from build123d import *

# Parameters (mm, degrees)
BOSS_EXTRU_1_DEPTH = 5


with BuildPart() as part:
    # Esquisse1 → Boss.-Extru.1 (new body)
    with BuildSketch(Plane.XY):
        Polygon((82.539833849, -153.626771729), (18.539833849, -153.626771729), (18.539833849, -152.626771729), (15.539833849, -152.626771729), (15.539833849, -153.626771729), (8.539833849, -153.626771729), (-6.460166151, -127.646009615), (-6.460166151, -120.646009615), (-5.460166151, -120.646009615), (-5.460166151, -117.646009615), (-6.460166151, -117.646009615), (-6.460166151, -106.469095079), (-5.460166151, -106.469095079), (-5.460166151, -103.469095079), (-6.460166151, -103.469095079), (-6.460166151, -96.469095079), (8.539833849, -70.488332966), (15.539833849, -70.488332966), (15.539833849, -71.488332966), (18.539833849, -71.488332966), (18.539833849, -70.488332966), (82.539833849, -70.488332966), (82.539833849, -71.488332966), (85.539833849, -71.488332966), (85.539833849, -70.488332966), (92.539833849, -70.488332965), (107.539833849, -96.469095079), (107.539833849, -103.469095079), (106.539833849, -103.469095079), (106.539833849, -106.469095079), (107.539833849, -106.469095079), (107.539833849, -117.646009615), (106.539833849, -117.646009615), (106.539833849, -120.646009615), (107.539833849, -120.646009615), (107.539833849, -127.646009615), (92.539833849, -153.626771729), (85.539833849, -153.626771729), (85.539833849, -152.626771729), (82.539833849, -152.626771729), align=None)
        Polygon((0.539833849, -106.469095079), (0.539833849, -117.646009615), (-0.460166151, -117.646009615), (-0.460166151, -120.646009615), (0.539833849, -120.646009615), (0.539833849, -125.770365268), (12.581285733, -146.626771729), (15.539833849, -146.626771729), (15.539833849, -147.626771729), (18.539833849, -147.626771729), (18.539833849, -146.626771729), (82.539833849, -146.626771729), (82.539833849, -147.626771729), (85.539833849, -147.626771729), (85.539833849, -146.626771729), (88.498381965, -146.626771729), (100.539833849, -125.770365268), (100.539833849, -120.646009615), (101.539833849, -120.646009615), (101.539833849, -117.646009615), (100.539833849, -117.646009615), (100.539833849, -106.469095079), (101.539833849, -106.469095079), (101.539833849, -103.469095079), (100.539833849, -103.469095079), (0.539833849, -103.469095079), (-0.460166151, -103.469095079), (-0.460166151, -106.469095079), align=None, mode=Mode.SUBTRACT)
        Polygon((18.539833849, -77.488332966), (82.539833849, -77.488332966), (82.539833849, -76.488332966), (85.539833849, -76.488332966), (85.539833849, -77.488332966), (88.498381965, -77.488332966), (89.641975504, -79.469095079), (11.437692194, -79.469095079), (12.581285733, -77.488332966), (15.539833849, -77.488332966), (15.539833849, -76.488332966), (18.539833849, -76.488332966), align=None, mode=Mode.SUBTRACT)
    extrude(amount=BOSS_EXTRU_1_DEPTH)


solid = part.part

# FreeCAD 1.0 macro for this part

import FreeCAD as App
import Part
import Sketcher
Q = App.Units.Quantity

doc = App.newDocument("Part")
body = doc.addObject("PartDesign::Body", "Body")

sketch1 = doc.addObject("Sketcher::SketchObject", "Sketch")
body.addObject(sketch1)
sketch1.AttachmentSupport = (doc.XY_Plane, [""])
sketch1.MapMode = "FlatFace"
sketch1.addGeometry([
    Part.LineSegment(App.Vector(18.5, -153.6, 0), App.Vector(82.5, -153.6, 0)),
    Part.LineSegment(App.Vector(82.5, -153.6, 0), App.Vector(82.5, -152.6, 0)),
    Part.LineSegment(App.Vector(82.5, -152.6, 0), App.Vector(85.5, -152.6, 0)),
    Part.LineSegment(App.Vector(85.5, -152.6, 0), App.Vector(85.5, -153.6, 0)),
    Part.LineSegment(App.Vector(85.5, -153.6, 0), App.Vector(92.5, -153.6, 0)),
    Part.LineSegment(App.Vector(92.5, -153.6, 0), App.Vector(107.5, -127.6, 0)),
    Part.LineSegment(App.Vector(107.5, -127.6, 0), App.Vector(107.5, -120.6, 0)),
    Part.LineSegment(App.Vector(107.5, -120.6, 0), App.Vector(106.5, -120.6, 0)),
    Part.LineSegment(App.Vector(106.5, -120.6, 0), App.Vector(106.5, -117.6, 0)),
    Part.LineSegment(App.Vector(106.5, -117.6, 0), App.Vector(107.5, -117.6, 0)),
    Part.LineSegment(App.Vector(107.5, -117.6, 0), App.Vector(107.5, -106.5, 0)),
    Part.LineSegment(App.Vector(107.5, -106.5, 0), App.Vector(106.5, -106.5, 0)),
    Part.LineSegment(App.Vector(106.5, -106.5, 0), App.Vector(106.5, -103.5, 0)),
    Part.LineSegment(App.Vector(106.5, -103.5, 0), App.Vector(107.5, -103.5, 0)),
    Part.LineSegment(App.Vector(107.5, -103.5, 0), App.Vector(107.5, -96.5, 0)),
    Part.LineSegment(App.Vector(107.5, -96.5, 0), App.Vector(92.5, -70.5, 0)),
    Part.LineSegment(App.Vector(92.5, -70.5, 0), App.Vector(85.5, -70.5, 0)),
    Part.LineSegment(App.Vector(85.5, -70.5, 0), App.Vector(85.5, -71.5, 0)),
    Part.LineSegment(App.Vector(85.5, -71.5, 0), App.Vector(82.5, -71.5, 0)),
    Part.LineSegment(App.Vector(82.5, -71.5, 0), App.Vector(82.5, -70.5, 0)),
    Part.LineSegment(App.Vector(82.5, -70.5, 0), App.Vector(18.5, -70.5, 0)),
    Part.LineSegment(App.Vector(18.5, -70.5, 0), App.Vector(18.5, -71.5, 0)),
    Part.LineSegment(App.Vector(18.5, -71.5, 0), App.Vector(15.5, -71.5, 0)),
    Part.LineSegment(App.Vector(15.5, -71.5, 0), App.Vector(15.5, -70.5, 0)),
    Part.LineSegment(App.Vector(15.5, -70.5, 0), App.Vector(8.5, -70.5, 0)),
    Part.LineSegment(App.Vector(8.5, -70.5, 0), App.Vector(-6.5, -96.5, 0)),
    Part.LineSegment(App.Vector(-6.5, -96.5, 0), App.Vector(-6.5, -103.5, 0)),
    Part.LineSegment(App.Vector(-6.5, -103.5, 0), App.Vector(-5.5, -103.5, 0)),
    Part.LineSegment(App.Vector(-5.5, -103.5, 0), App.Vector(-5.5, -106.5, 0)),
    Part.LineSegment(App.Vector(-5.5, -106.5, 0), App.Vector(-6.5, -106.5, 0)),
    Part.LineSegment(App.Vector(-6.5, -106.5, 0), App.Vector(-6.5, -117.6, 0)),
    Part.LineSegment(App.Vector(-6.5, -117.6, 0), App.Vector(-5.5, -117.6, 0)),
    Part.LineSegment(App.Vector(-5.5, -117.6, 0), App.Vector(-5.5, -120.6, 0)),
    Part.LineSegment(App.Vector(-5.5, -120.6, 0), App.Vector(-6.5, -120.6, 0)),
    Part.LineSegment(App.Vector(-6.5, -120.6, 0), App.Vector(-6.5, -127.6, 0)),
    Part.LineSegment(App.Vector(-6.5, -127.6, 0), App.Vector(8.5, -153.6, 0)),
    Part.LineSegment(App.Vector(8.5, -153.6, 0), App.Vector(15.5, -153.6, 0)),
    Part.LineSegment(App.Vector(15.5, -153.6, 0), App.Vector(15.5, -152.6, 0)),
    Part.LineSegment(App.Vector(15.5, -152.6, 0), App.Vector(18.5, -152.6, 0)),
    Part.LineSegment(App.Vector(18.5, -152.6, 0), App.Vector(18.5, -153.6, 0)),
    Part.LineSegment(App.Vector(0.5, -106.5, 0), App.Vector(-0.5, -106.5, 0)),
    Part.LineSegment(App.Vector(-0.5, -106.5, 0), App.Vector(-0.5, -103.5, 0)),
    Part.LineSegment(App.Vector(-0.5, -103.5, 0), App.Vector(101.5, -103.5, 0)),
    Part.LineSegment(App.Vector(101.5, -103.5, 0), App.Vector(101.5, -106.5, 0)),
    Part.LineSegment(App.Vector(101.5, -106.5, 0), App.Vector(100.5, -106.5, 0)),
    Part.LineSegment(App.Vector(100.5, -106.5, 0), App.Vector(100.5, -117.6, 0)),
    Part.LineSegment(App.Vector(100.5, -117.6, 0), App.Vector(101.5, -117.6, 0)),
    Part.LineSegment(App.Vector(101.5, -117.6, 0), App.Vector(101.5, -120.6, 0)),
    Part.LineSegment(App.Vector(101.5, -120.6, 0), App.Vector(100.5, -120.6, 0)),
    Part.LineSegment(App.Vector(100.5, -120.6, 0), App.Vector(100.5, -125.8, 0)),
    Part.LineSegment(App.Vector(100.5, -125.8, 0), App.Vector(88.5, -146.6, 0)),
    Part.LineSegment(App.Vector(88.5, -146.6, 0), App.Vector(85.5, -146.6, 0)),
    Part.LineSegment(App.Vector(85.5, -146.6, 0), App.Vector(85.5, -147.6, 0)),
    Part.LineSegment(App.Vector(85.5, -147.6, 0), App.Vector(82.5, -147.6, 0)),
    Part.LineSegment(App.Vector(82.5, -147.6, 0), App.Vector(82.5, -146.6, 0)),
    Part.LineSegment(App.Vector(82.5, -146.6, 0), App.Vector(18.5, -146.6, 0)),
    Part.LineSegment(App.Vector(18.5, -146.6, 0), App.Vector(18.5, -147.6, 0)),
    Part.LineSegment(App.Vector(18.5, -147.6, 0), App.Vector(15.5, -147.6, 0)),
    Part.LineSegment(App.Vector(15.5, -147.6, 0), App.Vector(15.5, -146.6, 0)),
    Part.LineSegment(App.Vector(15.5, -146.6, 0), App.Vector(12.6, -146.6, 0)),
    Part.LineSegment(App.Vector(12.6, -146.6, 0), App.Vector(0.5, -125.8, 0)),
    Part.LineSegment(App.Vector(0.5, -125.8, 0), App.Vector(0.5, -120.6, 0)),
    Part.LineSegment(App.Vector(0.5, -120.6, 0), App.Vector(-0.5, -120.6, 0)),
    Part.LineSegment(App.Vector(-0.5, -120.6, 0), App.Vector(-0.5, -117.6, 0)),
    Part.LineSegment(App.Vector(-0.5, -117.6, 0), App.Vector(0.5, -117.6, 0)),
    Part.LineSegment(App.Vector(0.5, -117.6, 0), App.Vector(0.5, -106.5, 0)),
    Part.LineSegment(App.Vector(18.5, -77.5, 0), App.Vector(82.5, -77.5, 0)),
    Part.LineSegment(App.Vector(82.5, -77.5, 0), App.Vector(82.5, -76.5, 0)),
    Part.LineSegment(App.Vector(82.5, -76.5, 0), App.Vector(85.5, -76.5, 0)),
    Part.LineSegment(App.Vector(85.5, -76.5, 0), App.Vector(85.5, -77.5, 0)),
    Part.LineSegment(App.Vector(85.5, -77.5, 0), App.Vector(88.5, -77.5, 0)),
    Part.LineSegment(App.Vector(88.5, -77.5, 0), App.Vector(89.6, -79.5, 0)),
    Part.LineSegment(App.Vector(89.6, -79.5, 0), App.Vector(11.4, -79.5, 0)),
    Part.LineSegment(App.Vector(11.4, -79.5, 0), App.Vector(12.6, -77.5, 0)),
    Part.LineSegment(App.Vector(12.6, -77.5, 0), App.Vector(15.5, -77.5, 0)),
    Part.LineSegment(App.Vector(15.5, -77.5, 0), App.Vector(15.5, -76.5, 0)),
    Part.LineSegment(App.Vector(15.5, -76.5, 0), App.Vector(18.5, -76.5, 0)),
    Part.LineSegment(App.Vector(18.5, -76.5, 0), App.Vector(18.5, -77.5, 0)),
], False)
sketch1.addConstraint([
    Sketcher.Constraint("Coincident", 0, 2, 1, 1),
    Sketcher.Constraint("Coincident", 1, 2, 2, 1),
    Sketcher.Constraint("Coincident", 2, 2, 3, 1),
    Sketcher.Constraint("Coincident", 3, 2, 4, 1),
    Sketcher.Constraint("Coincident", 4, 2, 5, 1),
    Sketcher.Constraint("Coincident", 5, 2, 6, 1),
    Sketcher.Constraint("Coincident", 6, 2, 7, 1),
    Sketcher.Constraint("Coincident", 7, 2, 8, 1),
    Sketcher.Constraint("Coincident", 8, 2, 9, 1),
    Sketcher.Constraint("Coincident", 9, 2, 10, 1),
    Sketcher.Constraint("Coincident", 10, 2, 11, 1),
    Sketcher.Constraint("Coincident", 11, 2, 12, 1),
    Sketcher.Constraint("Coincident", 12, 2, 13, 1),
    Sketcher.Constraint("Coincident", 13, 2, 14, 1),
    Sketcher.Constraint("Coincident", 14, 2, 15, 1),
    Sketcher.Constraint("Coincident", 15, 2, 16, 1),
    Sketcher.Constraint("Coincident", 16, 2, 17, 1),
    Sketcher.Constraint("Coincident", 17, 2, 18, 1),
    Sketcher.Constraint("Coincident", 18, 2, 19, 1),
    Sketcher.Constraint("Coincident", 19, 2, 20, 1),
    Sketcher.Constraint("Coincident", 20, 2, 21, 1),
    Sketcher.Constraint("Coincident", 21, 2, 22, 1),
    Sketcher.Constraint("Coincident", 22, 2, 23, 1),
    Sketcher.Constraint("Coincident", 23, 2, 24, 1),
    Sketcher.Constraint("Coincident", 24, 2, 25, 1),
    Sketcher.Constraint("Coincident", 25, 2, 26, 1),
    Sketcher.Constraint("Coincident", 26, 2, 27, 1),
    Sketcher.Constraint("Coincident", 27, 2, 28, 1),
    Sketcher.Constraint("Coincident", 28, 2, 29, 1),
    Sketcher.Constraint("Coincident", 29, 2, 30, 1),
    Sketcher.Constraint("Coincident", 30, 2, 31, 1),
    Sketcher.Constraint("Coincident", 31, 2, 32, 1),
    Sketcher.Constraint("Coincident", 32, 2, 33, 1),
    Sketcher.Constraint("Coincident", 33, 2, 34, 1),
    Sketcher.Constraint("Coincident", 34, 2, 35, 1),
    Sketcher.Constraint("Coincident", 35, 2, 36, 1),
    Sketcher.Constraint("Coincident", 36, 2, 37, 1),
    Sketcher.Constraint("Coincident", 37, 2, 38, 1),
    Sketcher.Constraint("Coincident", 38, 2, 39, 1),
    Sketcher.Constraint("Coincident", 39, 2, 0, 1),
    Sketcher.Constraint("Coincident", 40, 2, 41, 1),
    Sketcher.Constraint("Coincident", 41, 2, 42, 1),
    Sketcher.Constraint("Coincident", 42, 2, 43, 1),
    Sketcher.Constraint("Coincident", 43, 2, 44, 1),
    Sketcher.Constraint("Coincident", 44, 2, 45, 1),
    Sketcher.Constraint("Coincident", 45, 2, 46, 1),
    Sketcher.Constraint("Coincident", 46, 2, 47, 1),
    Sketcher.Constraint("Coincident", 47, 2, 48, 1),
    Sketcher.Constraint("Coincident", 48, 2, 49, 1),
    Sketcher.Constraint("Coincident", 49, 2, 50, 1),
    Sketcher.Constraint("Coincident", 50, 2, 51, 1),
    Sketcher.Constraint("Coincident", 51, 2, 52, 1),
    Sketcher.Constraint("Coincident", 52, 2, 53, 1),
    Sketcher.Constraint("Coincident", 53, 2, 54, 1),
    Sketcher.Constraint("Coincident", 54, 2, 55, 1),
    Sketcher.Constraint("Coincident", 55, 2, 56, 1),
    Sketcher.Constraint("Coincident", 56, 2, 57, 1),
    Sketcher.Constraint("Coincident", 57, 2, 58, 1),
    Sketcher.Constraint("Coincident", 58, 2, 59, 1),
    Sketcher.Constraint("Coincident", 59, 2, 60, 1),
    Sketcher.Constraint("Coincident", 60, 2, 61, 1),
    Sketcher.Constraint("Coincident", 61, 2, 62, 1),
    Sketcher.Constraint("Coincident", 62, 2, 63, 1),
    Sketcher.Constraint("Coincident", 63, 2, 64, 1),
    Sketcher.Constraint("Coincident", 64, 2, 65, 1),
    Sketcher.Constraint("Coincident", 65, 2, 40, 1),
    Sketcher.Constraint("Coincident", 66, 2, 67, 1),
    Sketcher.Constraint("Coincident", 67, 2, 68, 1),
    Sketcher.Constraint("Coincident", 68, 2, 69, 1),
    Sketcher.Constraint("Coincident", 69, 2, 70, 1),
    Sketcher.Constraint("Coincident", 70, 2, 71, 1),
    Sketcher.Constraint("Coincident", 71, 2, 72, 1),
    Sketcher.Constraint("Coincident", 72, 2, 73, 1),
    Sketcher.Constraint("Coincident", 73, 2, 74, 1),
    Sketcher.Constraint("Coincident", 74, 2, 75, 1),
    Sketcher.Constraint("Coincident", 75, 2, 76, 1),
    Sketcher.Constraint("Coincident", 76, 2, 77, 1),
    Sketcher.Constraint("Coincident", 77, 2, 66, 1),
    Sketcher.Constraint("Horizontal", 0),
    Sketcher.Constraint("Vertical", 1),
    Sketcher.Constraint("Horizontal", 2),
    Sketcher.Constraint("Vertical", 3),
    Sketcher.Constraint("Horizontal", 4),
    Sketcher.Constraint("Vertical", 6),
    Sketcher.Constraint("Horizontal", 7),
    Sketcher.Constraint("Vertical", 8),
    Sketcher.Constraint("Horizontal", 9),
    Sketcher.Constraint("Vertical", 10),
    Sketcher.Constraint("Horizontal", 11),
    Sketcher.Constraint("Vertical", 12),
    Sketcher.Constraint("Horizontal", 13),
    Sketcher.Constraint("Vertical", 14),
    Sketcher.Constraint("Horizontal", 16),
    Sketcher.Constraint("Vertical", 17),
    Sketcher.Constraint("Horizontal", 18),
    Sketcher.Constraint("Vertical", 19),
    Sketcher.Constraint("Horizontal", 20),
    Sketcher.Constraint("Vertical", 21),
    Sketcher.Constraint("Horizontal", 22),
    Sketcher.Constraint("Vertical", 23),
    Sketcher.Constraint("Horizontal", 24),
    Sketcher.Constraint("Vertical", 26),
    Sketcher.Constraint("Horizontal", 27),
    Sketcher.Constraint("Vertical", 28),
    Sketcher.Constraint("Horizontal", 29),
    Sketcher.Constraint("Vertical", 30),
    Sketcher.Constraint("Horizontal", 31),
    Sketcher.Constraint("Vertical", 32),
    Sketcher.Constraint("Horizontal", 33),
    Sketcher.Constraint("Vertical", 34),
    Sketcher.Constraint("Horizontal", 36),
    Sketcher.Constraint("Vertical", 37),
    Sketcher.Constraint("Horizontal", 38),
    Sketcher.Constraint("Vertical", 39),
    Sketcher.Constraint("Horizontal", 40),
    Sketcher.Constraint("Vertical", 41),
    Sketcher.Constraint("Horizontal", 42),
    Sketcher.Constraint("Vertical", 43),
    Sketcher.Constraint("Horizontal", 44),
    Sketcher.Constraint("Vertical", 45),
    Sketcher.Constraint("Horizontal", 46),
    Sketcher.Constraint("Vertical", 47),
    Sketcher.Constraint("Horizontal", 48),
    Sketcher.Constraint("Vertical", 49),
    Sketcher.Constraint("Horizontal", 51),
    Sketcher.Constraint("Vertical", 52),
    Sketcher.Constraint("Horizontal", 53),
    Sketcher.Constraint("Vertical", 54),
    Sketcher.Constraint("Horizontal", 55),
    Sketcher.Constraint("Vertical", 56),
    Sketcher.Constraint("Horizontal", 57),
    Sketcher.Constraint("Vertical", 58),
    Sketcher.Constraint("Horizontal", 59),
    Sketcher.Constraint("Vertical", 61),
    Sketcher.Constraint("Horizontal", 62),
    Sketcher.Constraint("Vertical", 63),
    Sketcher.Constraint("Horizontal", 64),
    Sketcher.Constraint("Vertical", 65),
    Sketcher.Constraint("Horizontal", 66),
    Sketcher.Constraint("Vertical", 67),
    Sketcher.Constraint("Horizontal", 68),
    Sketcher.Constraint("Vertical", 69),
    Sketcher.Constraint("Horizontal", 70),
    Sketcher.Constraint("Horizontal", 72),
    Sketcher.Constraint("Horizontal", 74),
    Sketcher.Constraint("Vertical", 75),
    Sketcher.Constraint("Horizontal", 76),
    Sketcher.Constraint("Vertical", 77),
    Sketcher.Constraint("Parallel", 5, 25),
    Sketcher.Constraint("Parallel", 15, 35),
    Sketcher.Constraint("Parallel", 25, 50),
    Sketcher.Constraint("Parallel", 35, 60),
    Sketcher.Constraint("Parallel", 60, 71),
    Sketcher.Constraint("Parallel", 50, 73),
    Sketcher.Constraint("Horizontal", 0, 2, 3, 2),
    Sketcher.Constraint("Horizontal", 16, 2, 19, 2),
    Sketcher.Constraint("Horizontal", 18, 2, 21, 2),
    Sketcher.Constraint("Horizontal", 20, 2, 23, 2),
    Sketcher.Constraint("Horizontal", 14, 2, 25, 2),
    Sketcher.Constraint("Horizontal", 13, 2, 26, 2),
    Sketcher.Constraint("Horizontal", 11, 2, 28, 2),
    Sketcher.Constraint("Horizontal", 9, 2, 30, 2),
    Sketcher.Constraint("Horizontal", 7, 2, 32, 2),
    Sketcher.Constraint("Horizontal", 5, 2, 34, 2),
    Sketcher.Constraint("Horizontal", 4, 2, 35, 2),
    Sketcher.Constraint("Horizontal", 2, 2, 37, 2),
    Sketcher.Constraint("Horizontal", 29, 2, 40, 2),
    Sketcher.Constraint("Horizontal", 27, 2, 41, 2),
    Sketcher.Constraint("Horizontal", 40, 2, 43, 2),
    Sketcher.Constraint("Horizontal", 31, 2, 45, 2),
    Sketcher.Constraint("Horizontal", 33, 2, 47, 2),
    Sketcher.Constraint("Horizontal", 51, 2, 54, 2),
    Sketcher.Constraint("Horizontal", 53, 2, 56, 2),
    Sketcher.Constraint("Horizontal", 55, 2, 58, 2),
    Sketcher.Constraint("Horizontal", 49, 2, 60, 2),
    Sketcher.Constraint("Horizontal", 48, 2, 61, 2),
    Sketcher.Constraint("Horizontal", 46, 2, 63, 2),
    Sketcher.Constraint("Horizontal", 66, 2, 69, 2),
    Sketcher.Constraint("Horizontal", 70, 2, 73, 2),
    Sketcher.Constraint("Horizontal", 68, 2, 75, 2),
    Sketcher.Constraint("Vertical", 6, 2, 9, 2),
    Sketcher.Constraint("Vertical", 8, 2, 11, 2),
    Sketcher.Constraint("Vertical", 10, 2, 13, 2),
    Sketcher.Constraint("Vertical", 4, 2, 15, 2),
    Sketcher.Constraint("Vertical", 3, 2, 16, 2),
    Sketcher.Constraint("Vertical", 1, 2, 18, 2),
    Sketcher.Constraint("Vertical", 26, 2, 29, 2),
    Sketcher.Constraint("Vertical", 28, 2, 31, 2),
    Sketcher.Constraint("Vertical", 30, 2, 33, 2),
    Sketcher.Constraint("Vertical", 24, 2, 35, 2),
    Sketcher.Constraint("Vertical", 23, 2, 36, 2),
    Sketcher.Constraint("Vertical", 21, 2, 38, 2),
    Sketcher.Constraint("Vertical", 43, 2, 46, 2),
    Sketcher.Constraint("Vertical", 45, 2, 48, 2),
    Sketcher.Constraint("Vertical", 17, 2, 51, 2),
    Sketcher.Constraint("Vertical", 19, 2, 53, 2),
    Sketcher.Constraint("Vertical", 39, 2, 55, 2),
    Sketcher.Constraint("Vertical", 37, 2, 57, 2),
    Sketcher.Constraint("Vertical", 41, 2, 62, 2),
    Sketcher.Constraint("Vertical", 61, 2, 64, 2),
    Sketcher.Constraint("Vertical", 54, 2, 66, 2),
    Sketcher.Constraint("Vertical", 52, 2, 68, 2),
    Sketcher.Constraint("Vertical", 50, 2, 70, 2),
    Sketcher.Constraint("Vertical", 59, 2, 73, 2),
    Sketcher.Constraint("Vertical", 58, 2, 74, 2),
    Sketcher.Constraint("Vertical", 56, 2, 76, 2),
    Sketcher.Constraint("Equal", 18, 22),
    Sketcher.Constraint("Equal", 16, 24),
    Sketcher.Constraint("Equal", 13, 27),
    Sketcher.Constraint("Equal", 33, 40),
    Sketcher.Constraint("Equal", 40, 44),
    Sketcher.Constraint("Equal", 51, 59),
    Sketcher.Constraint("Equal", 64, 1),
    Sketcher.Constraint("Equal", 36, 6),
    Sketcher.Constraint("Equal", 76, 8),
    Sketcher.Constraint("Equal", 8, 12),
    Sketcher.Constraint("Equal", 6, 14),
    Sketcher.Constraint("Equal", 3, 17),
    Sketcher.Constraint("Equal", 39, 52),
    Sketcher.Constraint("Equal", 58, 67),
    Sketcher.Constraint("DistanceX", 0, 1, 0, 2, Q("64 mm")),
    Sketcher.Constraint("DistanceX", 2, 1, 2, 2, Q("3 mm")),
    Sketcher.Constraint("DistanceX", 4, 1, 4, 2, Q("7 mm")),
    Sketcher.Constraint("DistanceX", 7, 2, 7, 1, Q("1 mm")),
    Sketcher.Constraint("DistanceX", 42, 1, 42, 2, Q("102 mm")),
    Sketcher.Constraint("Angle", 5, Q("60 deg")),
    Sketcher.Constraint("Distance", 5, Q("30 mm")),
    Sketcher.Constraint("DistanceX", 51, 2, 51, 1, Q("2.958548 mm")),
    Sketcher.Constraint("DistanceX", 72, 2, 72, 1, Q("78.204283 mm")),
    Sketcher.Constraint("DistanceY", 10, 1, 10, 2, Q("11.176915 mm")),
    Sketcher.Constraint("DistanceY", 49, 2, 49, 1, Q("5.124356 mm")),
    Sketcher.Constraint("DistanceY", 0, 2, -1, 1, Q("153.626772 mm")),
    Sketcher.Constraint("DistanceX", -1, 1, 50, 2, Q("88.498382 mm")),
    Sketcher.Constraint("DistanceY", 66, 2, -1, 1, Q("77.488333 mm")),
])
pad1 = doc.addObject("PartDesign::Pad", "Pad")
body.addObject(pad1)
pad1.Profile = sketch1
pad1.Length = 5

doc.recompute()
